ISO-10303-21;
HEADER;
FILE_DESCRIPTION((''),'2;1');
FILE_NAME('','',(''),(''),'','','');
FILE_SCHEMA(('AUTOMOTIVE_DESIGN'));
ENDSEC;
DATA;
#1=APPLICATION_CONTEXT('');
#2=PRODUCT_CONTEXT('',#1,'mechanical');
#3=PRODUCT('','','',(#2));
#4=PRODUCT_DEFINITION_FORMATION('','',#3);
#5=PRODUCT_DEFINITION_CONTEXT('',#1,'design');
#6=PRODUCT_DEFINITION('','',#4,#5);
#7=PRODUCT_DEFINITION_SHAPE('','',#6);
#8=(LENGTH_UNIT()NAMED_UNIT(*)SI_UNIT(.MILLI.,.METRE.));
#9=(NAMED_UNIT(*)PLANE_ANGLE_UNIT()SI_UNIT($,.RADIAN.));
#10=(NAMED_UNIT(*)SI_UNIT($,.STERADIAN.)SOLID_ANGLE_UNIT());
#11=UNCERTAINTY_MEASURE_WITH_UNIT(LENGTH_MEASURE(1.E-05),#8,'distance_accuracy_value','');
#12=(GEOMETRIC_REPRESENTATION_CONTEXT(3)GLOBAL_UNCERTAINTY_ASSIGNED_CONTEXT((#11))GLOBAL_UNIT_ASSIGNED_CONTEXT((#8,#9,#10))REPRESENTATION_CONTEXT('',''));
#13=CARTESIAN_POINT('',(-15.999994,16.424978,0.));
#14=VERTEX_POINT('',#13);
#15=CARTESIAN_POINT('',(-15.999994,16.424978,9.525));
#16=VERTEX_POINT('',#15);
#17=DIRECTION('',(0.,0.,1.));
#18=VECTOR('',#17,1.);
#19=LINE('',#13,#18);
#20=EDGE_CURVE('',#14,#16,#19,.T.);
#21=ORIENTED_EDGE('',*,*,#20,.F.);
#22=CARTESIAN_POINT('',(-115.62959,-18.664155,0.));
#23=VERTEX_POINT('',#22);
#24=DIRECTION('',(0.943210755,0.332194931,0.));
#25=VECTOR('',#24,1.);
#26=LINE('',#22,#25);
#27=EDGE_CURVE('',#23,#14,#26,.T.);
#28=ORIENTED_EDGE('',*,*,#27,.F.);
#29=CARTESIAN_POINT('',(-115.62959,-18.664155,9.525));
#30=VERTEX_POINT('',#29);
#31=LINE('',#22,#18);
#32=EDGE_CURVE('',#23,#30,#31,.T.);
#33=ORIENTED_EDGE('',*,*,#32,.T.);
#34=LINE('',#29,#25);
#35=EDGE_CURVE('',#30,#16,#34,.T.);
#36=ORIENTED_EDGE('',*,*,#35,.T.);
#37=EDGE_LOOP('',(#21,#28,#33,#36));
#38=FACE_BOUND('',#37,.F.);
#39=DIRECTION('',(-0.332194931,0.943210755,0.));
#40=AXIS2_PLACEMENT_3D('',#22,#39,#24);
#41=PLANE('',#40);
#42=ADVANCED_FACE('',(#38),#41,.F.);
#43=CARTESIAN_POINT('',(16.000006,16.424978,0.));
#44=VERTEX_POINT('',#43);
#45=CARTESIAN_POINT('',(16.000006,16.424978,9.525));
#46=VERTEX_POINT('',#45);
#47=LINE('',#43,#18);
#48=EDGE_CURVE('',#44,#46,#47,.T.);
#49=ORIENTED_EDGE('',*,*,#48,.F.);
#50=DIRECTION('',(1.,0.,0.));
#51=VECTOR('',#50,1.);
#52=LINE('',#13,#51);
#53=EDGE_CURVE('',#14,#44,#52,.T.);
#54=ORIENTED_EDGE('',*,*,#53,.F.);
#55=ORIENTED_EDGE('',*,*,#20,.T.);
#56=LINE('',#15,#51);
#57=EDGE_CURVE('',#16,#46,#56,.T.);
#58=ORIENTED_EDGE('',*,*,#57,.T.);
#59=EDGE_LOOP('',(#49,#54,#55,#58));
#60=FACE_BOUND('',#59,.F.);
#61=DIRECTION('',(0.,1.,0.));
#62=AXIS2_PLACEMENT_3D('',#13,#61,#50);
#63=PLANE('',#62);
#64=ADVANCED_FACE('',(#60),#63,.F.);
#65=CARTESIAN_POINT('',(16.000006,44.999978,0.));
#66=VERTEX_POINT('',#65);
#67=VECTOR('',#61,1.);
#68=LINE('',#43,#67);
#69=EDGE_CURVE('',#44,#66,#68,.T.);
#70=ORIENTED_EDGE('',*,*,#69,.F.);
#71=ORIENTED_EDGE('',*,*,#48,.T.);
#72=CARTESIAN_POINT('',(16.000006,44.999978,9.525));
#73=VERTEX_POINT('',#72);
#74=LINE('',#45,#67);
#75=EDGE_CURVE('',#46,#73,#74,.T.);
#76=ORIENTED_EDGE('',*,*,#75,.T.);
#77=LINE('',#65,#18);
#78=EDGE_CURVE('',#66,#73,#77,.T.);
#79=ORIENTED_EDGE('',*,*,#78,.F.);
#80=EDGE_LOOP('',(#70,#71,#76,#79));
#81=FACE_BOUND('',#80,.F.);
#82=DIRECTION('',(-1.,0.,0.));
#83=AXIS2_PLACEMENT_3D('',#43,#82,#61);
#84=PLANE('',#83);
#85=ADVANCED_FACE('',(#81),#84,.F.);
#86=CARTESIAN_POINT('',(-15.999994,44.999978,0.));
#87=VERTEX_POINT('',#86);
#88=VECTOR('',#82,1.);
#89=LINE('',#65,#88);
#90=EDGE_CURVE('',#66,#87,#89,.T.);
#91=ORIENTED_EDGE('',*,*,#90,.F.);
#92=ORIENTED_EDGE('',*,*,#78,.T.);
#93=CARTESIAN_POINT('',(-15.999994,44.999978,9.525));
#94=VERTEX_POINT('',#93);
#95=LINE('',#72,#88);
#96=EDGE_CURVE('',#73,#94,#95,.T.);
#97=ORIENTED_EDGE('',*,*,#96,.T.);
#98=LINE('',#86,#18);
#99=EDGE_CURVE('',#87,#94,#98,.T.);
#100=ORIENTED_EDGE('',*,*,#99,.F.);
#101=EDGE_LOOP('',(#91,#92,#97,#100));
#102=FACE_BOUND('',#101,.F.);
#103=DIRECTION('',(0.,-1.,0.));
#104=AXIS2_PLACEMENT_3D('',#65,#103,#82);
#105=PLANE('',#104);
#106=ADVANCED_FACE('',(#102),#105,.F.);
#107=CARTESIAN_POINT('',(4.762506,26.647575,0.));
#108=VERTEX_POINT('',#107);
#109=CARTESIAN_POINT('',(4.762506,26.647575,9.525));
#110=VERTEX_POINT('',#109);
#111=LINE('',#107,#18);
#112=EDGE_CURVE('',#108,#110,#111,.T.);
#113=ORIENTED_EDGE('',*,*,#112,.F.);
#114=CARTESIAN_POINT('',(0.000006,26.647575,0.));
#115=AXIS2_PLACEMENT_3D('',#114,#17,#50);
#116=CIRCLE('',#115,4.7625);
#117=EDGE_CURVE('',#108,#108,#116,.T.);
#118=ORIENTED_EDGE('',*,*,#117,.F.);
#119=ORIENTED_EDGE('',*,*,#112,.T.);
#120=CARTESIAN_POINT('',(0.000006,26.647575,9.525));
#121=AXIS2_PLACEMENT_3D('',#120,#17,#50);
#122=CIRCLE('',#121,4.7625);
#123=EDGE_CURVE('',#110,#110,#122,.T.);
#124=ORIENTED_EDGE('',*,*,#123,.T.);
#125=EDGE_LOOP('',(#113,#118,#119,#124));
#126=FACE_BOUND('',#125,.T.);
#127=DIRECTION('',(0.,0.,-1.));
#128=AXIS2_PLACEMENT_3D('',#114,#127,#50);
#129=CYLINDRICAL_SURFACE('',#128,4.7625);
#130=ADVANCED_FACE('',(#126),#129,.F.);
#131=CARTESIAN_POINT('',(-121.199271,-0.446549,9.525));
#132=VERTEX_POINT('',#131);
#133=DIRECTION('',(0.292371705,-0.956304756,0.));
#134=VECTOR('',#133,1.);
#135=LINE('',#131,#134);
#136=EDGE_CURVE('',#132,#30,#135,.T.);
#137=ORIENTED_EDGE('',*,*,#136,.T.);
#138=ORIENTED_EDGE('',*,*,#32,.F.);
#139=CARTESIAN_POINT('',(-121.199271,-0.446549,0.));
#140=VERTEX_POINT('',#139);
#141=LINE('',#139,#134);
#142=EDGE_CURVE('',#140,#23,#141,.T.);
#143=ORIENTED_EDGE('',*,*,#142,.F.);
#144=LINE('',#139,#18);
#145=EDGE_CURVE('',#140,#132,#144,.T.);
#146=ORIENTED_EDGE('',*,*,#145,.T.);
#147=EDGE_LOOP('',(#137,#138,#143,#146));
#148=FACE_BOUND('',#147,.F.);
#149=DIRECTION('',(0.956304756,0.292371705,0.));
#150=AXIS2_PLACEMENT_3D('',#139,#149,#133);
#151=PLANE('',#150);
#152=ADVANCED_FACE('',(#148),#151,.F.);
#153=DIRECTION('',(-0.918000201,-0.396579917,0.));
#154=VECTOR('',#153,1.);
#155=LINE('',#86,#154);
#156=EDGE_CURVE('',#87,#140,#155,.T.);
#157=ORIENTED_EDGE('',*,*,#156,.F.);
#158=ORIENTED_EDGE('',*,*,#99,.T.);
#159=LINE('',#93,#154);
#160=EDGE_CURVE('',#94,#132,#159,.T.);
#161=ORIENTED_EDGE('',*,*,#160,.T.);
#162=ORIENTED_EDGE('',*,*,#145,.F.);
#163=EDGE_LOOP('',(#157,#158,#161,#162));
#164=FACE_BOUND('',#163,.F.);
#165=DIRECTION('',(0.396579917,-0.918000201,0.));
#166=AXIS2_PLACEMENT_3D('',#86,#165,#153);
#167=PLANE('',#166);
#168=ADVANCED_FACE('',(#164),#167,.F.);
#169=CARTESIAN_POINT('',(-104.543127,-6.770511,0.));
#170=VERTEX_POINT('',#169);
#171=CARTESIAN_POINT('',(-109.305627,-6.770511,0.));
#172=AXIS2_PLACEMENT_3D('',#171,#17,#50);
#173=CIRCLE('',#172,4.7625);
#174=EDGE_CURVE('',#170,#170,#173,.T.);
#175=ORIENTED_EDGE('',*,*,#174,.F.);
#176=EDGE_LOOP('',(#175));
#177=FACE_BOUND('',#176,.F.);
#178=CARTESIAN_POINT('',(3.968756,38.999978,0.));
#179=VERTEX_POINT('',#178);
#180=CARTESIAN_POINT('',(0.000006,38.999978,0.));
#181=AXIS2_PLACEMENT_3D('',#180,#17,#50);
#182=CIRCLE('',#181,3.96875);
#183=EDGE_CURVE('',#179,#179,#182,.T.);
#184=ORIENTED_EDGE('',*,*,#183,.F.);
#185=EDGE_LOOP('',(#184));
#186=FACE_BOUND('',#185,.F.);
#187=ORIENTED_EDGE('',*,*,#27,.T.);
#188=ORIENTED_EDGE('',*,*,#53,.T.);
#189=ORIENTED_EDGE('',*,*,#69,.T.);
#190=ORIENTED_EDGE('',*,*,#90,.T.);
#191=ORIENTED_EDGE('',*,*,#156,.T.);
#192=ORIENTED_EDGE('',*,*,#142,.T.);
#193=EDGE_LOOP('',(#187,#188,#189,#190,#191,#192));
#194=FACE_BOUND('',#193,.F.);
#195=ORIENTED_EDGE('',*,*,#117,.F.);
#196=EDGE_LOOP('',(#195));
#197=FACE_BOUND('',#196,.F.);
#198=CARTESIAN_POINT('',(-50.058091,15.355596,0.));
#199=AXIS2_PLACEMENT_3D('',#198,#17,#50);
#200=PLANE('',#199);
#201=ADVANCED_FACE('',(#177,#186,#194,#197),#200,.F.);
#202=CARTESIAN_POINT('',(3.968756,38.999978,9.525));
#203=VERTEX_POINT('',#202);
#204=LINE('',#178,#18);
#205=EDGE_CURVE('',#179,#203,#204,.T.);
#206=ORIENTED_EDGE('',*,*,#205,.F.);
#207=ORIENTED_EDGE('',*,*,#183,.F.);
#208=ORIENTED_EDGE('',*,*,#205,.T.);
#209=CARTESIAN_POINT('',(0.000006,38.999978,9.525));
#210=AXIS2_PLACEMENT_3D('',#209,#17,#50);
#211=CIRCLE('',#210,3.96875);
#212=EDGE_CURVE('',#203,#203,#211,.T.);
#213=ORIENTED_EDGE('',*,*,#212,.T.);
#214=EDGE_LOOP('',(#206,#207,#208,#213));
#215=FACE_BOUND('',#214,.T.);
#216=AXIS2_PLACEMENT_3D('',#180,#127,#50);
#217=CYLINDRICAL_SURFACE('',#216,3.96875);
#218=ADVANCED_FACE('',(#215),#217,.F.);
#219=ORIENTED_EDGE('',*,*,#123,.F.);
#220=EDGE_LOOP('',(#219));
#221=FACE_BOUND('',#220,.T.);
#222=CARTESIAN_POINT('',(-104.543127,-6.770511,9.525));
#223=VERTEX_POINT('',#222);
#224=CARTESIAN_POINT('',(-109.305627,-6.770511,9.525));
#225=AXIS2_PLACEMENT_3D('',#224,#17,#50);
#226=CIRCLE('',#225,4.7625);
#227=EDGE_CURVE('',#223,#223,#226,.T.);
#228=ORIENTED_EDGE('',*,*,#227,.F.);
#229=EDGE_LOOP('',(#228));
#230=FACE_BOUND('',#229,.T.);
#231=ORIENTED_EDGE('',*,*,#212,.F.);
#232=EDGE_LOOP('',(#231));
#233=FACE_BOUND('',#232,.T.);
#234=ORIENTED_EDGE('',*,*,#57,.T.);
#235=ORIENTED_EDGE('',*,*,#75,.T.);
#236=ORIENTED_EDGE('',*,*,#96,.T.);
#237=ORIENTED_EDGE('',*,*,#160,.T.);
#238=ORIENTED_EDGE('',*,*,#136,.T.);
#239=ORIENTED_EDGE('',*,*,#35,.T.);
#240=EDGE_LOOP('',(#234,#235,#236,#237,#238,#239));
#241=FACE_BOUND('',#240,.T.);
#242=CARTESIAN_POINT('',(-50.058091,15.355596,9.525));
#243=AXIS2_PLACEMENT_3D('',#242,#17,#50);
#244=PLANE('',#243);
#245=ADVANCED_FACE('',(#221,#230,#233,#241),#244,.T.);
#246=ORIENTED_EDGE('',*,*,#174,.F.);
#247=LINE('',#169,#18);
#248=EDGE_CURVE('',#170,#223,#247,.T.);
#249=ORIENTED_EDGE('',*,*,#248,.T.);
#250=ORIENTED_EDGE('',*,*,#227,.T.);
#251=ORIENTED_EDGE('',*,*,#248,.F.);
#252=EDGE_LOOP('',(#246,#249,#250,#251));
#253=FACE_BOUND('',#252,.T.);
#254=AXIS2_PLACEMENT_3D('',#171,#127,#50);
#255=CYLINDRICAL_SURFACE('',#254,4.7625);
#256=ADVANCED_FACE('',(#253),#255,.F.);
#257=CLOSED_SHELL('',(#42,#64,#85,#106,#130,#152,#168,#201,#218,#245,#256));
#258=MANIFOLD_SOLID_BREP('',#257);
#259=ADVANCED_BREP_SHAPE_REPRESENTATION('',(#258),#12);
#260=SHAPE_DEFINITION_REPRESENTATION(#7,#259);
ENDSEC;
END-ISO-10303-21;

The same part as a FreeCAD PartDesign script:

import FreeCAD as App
import Part
import Sketcher
from FreeCAD import Vector
Q = App.Units.Quantity

doc = App.newDocument("Part")
params = doc.addObject("Spreadsheet::Sheet", "Params")
for row, (alias, value) in enumerate([
    ("sketch1_diameter", "0.375 in"),
    ("sketch1_diameter2", "0.3125 in"),
    ("sketch1_length", "0.75 in"),
    ("sketch1_height", "1.125 in"),
    ("pad1_length", "0.375 in"),
], start=1):
    params.set(f"A{row}", alias)
    params.set(f"B{row}", "=" + value)
    params.setAlias(f"B{row}", alias)

body = doc.addObject("PartDesign::Body", "Body")

# Sketch on XY plane
sketch1 = doc.addObject("Sketcher::SketchObject", "Sketch")
body.addObject(sketch1)
sketch1.AttachmentSupport = (doc.XY_Plane, [""])
sketch1.MapMode = "FlatFace"
sketch1.addGeometry([
    Part.LineSegment(Vector(-16, 45, 0), Vector(-121.2, -0.4, 0)),  # 0
    Part.LineSegment(Vector(-121.2, -0.4, 0), Vector(-115.6, -18.7, 0)),  # 1
    Part.LineSegment(Vector(-115.6, -18.7, 0), Vector(-16, 16.4, 0)),  # 2
    Part.LineSegment(Vector(-16, 16.4, 0), Vector(16, 16.4, 0)),  # 3
    Part.LineSegment(Vector(16, 16.4, 0), Vector(16, 45, 0)),  # 4
    Part.LineSegment(Vector(16, 45, 0), Vector(-16, 45, 0)),  # 5
    Part.Circle(Vector(-109.3, -6.8, 0), Vector(0, 0, 1), 4.8),  # 6
    Part.Circle(Vector(0, 26.6, 0), Vector(0, 0, 1), 4.8),  # 7
    Part.Circle(Vector(0, 39, 0), Vector(0, 0, 1), 4),  # 8
], False)
sketch1.addConstraint([
    Sketcher.Constraint("Coincident", 0, 2, 1, 1),
    Sketcher.Constraint("Coincident", 1, 2, 2, 1),
    Sketcher.Constraint("Coincident", 2, 2, 3, 1),
    Sketcher.Constraint("Coincident", 3, 2, 4, 1),
    Sketcher.Constraint("Coincident", 4, 2, 5, 1),
    Sketcher.Constraint("Coincident", 5, 2, 0, 1),
    Sketcher.Constraint("Horizontal", 3),
    Sketcher.Constraint("Vertical", 4),
    Sketcher.Constraint("Horizontal", 5),
    Sketcher.Constraint("Equal", 6, 7),
    Sketcher.Constraint("Vertical", 7, 3, 8, 3),
    Sketcher.Constraint("Vertical", 2, 2, 5, 2),
    Sketcher.Constraint("Diameter", 6, Q("0.375 in")),
    Sketcher.Constraint("Diameter", 8, Q("0.3125 in")),
    Sketcher.Constraint("Angle", 1, Q("-73 deg")),
    Sketcher.Constraint("Distance", 1, Q("0.75 in")),
    Sketcher.Constraint("DistanceY", 4, 1, 4, 2, Q("1.125 in")),
    Sketcher.Constraint("DistanceX", 3, 1, 3, 2, 32.0),
    Sketcher.Constraint("DistanceX", 2, 2, 7, 3, 16.0),
    Sketcher.Constraint("DistanceY", 2, 2, 8, 3, 22.575),
    Sketcher.Constraint("Distance", 2, 105.628138),
    Sketcher.Constraint("DistanceY", 6, 3, -1, 1, 6.770511),
    Sketcher.Constraint("DistanceX", 0, 2, -1, 1, 121.199271),
    Sketcher.Constraint("DistanceY", 0, 2, -1, 1, 0.446549),
    Sketcher.Constraint("DistanceY", 6, 3, 8, 3, 45.770489),
    Sketcher.Constraint("DistanceY", 1, 2, 7, 3, 45.311729),
    Sketcher.Constraint("DistanceX", 6, 3, -1, 1, 109.305627),
])
sketch1.setExpression("Constraints[12]", "Params.sketch1_diameter")
sketch1.setExpression("Constraints[13]", "Params.sketch1_diameter2")
sketch1.setExpression("Constraints[15]", "Params.sketch1_length")
sketch1.setExpression("Constraints[16]", "Params.sketch1_height")
pad1 = doc.addObject("PartDesign::Pad", "Pad")
body.addObject(pad1)
pad1.Profile = sketch1
pad1.setExpression("Length", "Params.pad1_length")

doc.recompute()
